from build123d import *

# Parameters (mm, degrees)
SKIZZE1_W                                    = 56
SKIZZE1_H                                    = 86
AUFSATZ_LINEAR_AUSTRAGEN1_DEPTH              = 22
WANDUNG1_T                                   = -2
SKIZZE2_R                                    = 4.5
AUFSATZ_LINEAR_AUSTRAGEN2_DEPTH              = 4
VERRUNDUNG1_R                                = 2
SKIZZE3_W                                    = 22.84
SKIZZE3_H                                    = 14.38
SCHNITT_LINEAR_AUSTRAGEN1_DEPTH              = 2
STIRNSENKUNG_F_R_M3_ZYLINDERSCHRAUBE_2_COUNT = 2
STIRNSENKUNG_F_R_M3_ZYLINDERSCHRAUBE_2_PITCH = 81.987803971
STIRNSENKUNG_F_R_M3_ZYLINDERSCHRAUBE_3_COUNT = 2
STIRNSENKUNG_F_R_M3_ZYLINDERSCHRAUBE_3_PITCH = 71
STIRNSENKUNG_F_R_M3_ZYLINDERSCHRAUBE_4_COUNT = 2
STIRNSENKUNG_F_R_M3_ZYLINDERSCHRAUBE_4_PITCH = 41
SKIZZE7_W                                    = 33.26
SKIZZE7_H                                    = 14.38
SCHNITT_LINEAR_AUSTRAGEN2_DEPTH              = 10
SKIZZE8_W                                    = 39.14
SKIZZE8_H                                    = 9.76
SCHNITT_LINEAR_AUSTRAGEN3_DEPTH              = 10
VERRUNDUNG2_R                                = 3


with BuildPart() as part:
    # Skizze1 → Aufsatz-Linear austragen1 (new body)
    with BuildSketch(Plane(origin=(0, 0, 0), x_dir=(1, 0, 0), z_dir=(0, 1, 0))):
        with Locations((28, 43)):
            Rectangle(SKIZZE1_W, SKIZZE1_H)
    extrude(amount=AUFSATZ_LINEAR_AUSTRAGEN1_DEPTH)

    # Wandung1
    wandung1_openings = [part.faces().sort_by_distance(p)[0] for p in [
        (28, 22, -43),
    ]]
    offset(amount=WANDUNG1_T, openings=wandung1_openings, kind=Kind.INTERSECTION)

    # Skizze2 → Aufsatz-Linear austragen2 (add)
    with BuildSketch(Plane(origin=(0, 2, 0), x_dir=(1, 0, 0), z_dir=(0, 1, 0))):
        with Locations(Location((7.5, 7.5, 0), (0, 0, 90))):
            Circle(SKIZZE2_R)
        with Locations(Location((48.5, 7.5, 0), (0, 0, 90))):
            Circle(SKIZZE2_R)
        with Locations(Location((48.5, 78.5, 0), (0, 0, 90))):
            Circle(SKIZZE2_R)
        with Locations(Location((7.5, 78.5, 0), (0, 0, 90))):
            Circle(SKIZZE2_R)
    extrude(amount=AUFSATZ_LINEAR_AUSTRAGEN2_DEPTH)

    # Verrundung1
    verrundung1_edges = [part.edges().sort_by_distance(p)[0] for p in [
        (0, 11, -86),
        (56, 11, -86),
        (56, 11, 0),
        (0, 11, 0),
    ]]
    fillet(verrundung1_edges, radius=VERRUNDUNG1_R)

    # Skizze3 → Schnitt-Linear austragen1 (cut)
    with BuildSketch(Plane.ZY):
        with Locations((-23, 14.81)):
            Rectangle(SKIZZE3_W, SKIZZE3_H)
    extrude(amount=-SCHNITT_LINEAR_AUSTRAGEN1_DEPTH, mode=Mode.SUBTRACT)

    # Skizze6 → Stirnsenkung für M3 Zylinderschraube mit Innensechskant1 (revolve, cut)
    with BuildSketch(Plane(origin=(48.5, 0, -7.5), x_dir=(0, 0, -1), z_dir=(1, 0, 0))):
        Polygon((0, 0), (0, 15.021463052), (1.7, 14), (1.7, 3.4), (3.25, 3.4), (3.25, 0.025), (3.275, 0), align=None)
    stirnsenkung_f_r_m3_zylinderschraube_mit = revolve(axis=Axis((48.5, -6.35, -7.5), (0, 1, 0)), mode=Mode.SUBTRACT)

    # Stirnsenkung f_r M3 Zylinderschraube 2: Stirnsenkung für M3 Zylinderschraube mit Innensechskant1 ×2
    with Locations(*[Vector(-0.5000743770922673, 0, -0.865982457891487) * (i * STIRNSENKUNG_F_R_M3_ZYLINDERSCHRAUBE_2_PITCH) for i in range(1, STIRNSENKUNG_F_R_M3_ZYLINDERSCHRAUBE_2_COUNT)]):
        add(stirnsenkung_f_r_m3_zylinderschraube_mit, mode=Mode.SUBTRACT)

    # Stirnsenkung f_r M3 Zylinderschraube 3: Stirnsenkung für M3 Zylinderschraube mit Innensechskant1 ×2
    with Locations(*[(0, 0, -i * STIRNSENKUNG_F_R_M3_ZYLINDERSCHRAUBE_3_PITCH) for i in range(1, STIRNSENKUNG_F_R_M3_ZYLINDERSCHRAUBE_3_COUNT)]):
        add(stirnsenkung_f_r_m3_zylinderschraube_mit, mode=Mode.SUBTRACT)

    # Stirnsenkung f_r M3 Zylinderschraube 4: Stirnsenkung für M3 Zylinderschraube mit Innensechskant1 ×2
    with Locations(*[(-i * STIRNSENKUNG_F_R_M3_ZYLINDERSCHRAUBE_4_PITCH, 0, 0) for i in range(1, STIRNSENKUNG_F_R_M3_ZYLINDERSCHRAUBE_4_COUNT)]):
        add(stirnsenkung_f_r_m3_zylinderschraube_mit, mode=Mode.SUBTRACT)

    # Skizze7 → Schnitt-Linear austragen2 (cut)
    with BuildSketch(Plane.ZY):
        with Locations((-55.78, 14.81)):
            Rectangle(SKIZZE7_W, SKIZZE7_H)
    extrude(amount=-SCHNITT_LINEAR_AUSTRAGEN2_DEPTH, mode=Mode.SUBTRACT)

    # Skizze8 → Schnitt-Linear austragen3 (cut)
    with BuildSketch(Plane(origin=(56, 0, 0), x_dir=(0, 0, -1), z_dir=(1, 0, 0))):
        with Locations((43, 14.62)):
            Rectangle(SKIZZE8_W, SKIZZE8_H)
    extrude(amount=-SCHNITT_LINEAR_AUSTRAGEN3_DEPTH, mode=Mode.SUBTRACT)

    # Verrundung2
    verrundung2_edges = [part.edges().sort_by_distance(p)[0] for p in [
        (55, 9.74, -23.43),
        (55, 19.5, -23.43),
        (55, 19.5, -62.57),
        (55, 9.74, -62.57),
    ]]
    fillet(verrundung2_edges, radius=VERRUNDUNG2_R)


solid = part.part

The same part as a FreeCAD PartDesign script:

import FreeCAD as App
import Part
import Sketcher

V = App.Vector
Q = App.Units.Quantity


def edges_at(feature, points):
    """Names of the edges that pass closest to the given points."""
    edges = feature.Shape.Edges
    near = lambda p: min(range(len(edges)), key=lambda i: edges[i].distToShape(Part.Vertex(*p))[0])
    return sorted({f"Edge{near(p) + 1}" for p in points})


def faces_at(feature, points):
    """Names of the faces that lie closest to the given points."""
    faces = feature.Shape.Faces
    near = lambda p: min(range(len(faces)), key=lambda i: faces[i].distToShape(Part.Vertex(*p))[0])
    return sorted({f"Face{near(p) + 1}" for p in points})


def add_polygon(sketch, points):
    """Adds a closed chain of lines whose ends are joined by coincident constraints."""
    first, n = sketch.GeometryCount, len(points)
    for a, b in zip(points, points[1:] + points[:1]):
        sketch.addGeometry(Part.LineSegment(App.Vector(*a, 0), App.Vector(*b, 0)), False)
    for i in range(n):
        sketch.addConstraint(Sketcher.Constraint("Coincident", first + i, 2, first + (i + 1) % n, 1))

doc = App.newDocument("Part")
body = doc.addObject("PartDesign::Body", "Body")

sketch1 = body.newObject("Sketcher::SketchObject", "Sketch")
sketch1.AttachmentSupport = (doc.getObject("XZ_Plane"), [""])
sketch1.MapMode = "FlatFace"
add_polygon(sketch1, [(0, -86), (0, 0), (56, 0), (56, -86)])
sketch1.addConstraint(Sketcher.Constraint("Vertical", 0))
sketch1.addConstraint(Sketcher.Constraint("Horizontal", 1))
sketch1.addConstraint(Sketcher.Constraint("Vertical", 2))
sketch1.addConstraint(Sketcher.Constraint("Horizontal", 3))
sketch1.addConstraint(Sketcher.Constraint("Coincident", 0, 2, -1, 1))
sketch1.addConstraint(Sketcher.Constraint("DistanceX", 1, 1, 1, 2, 56.0))
sketch1.addConstraint(Sketcher.Constraint("DistanceY", 0, 1, 0, 2, 86.0))
pad1 = body.newObject("PartDesign::Pad", "Pad")
pad1.Profile = sketch1
pad1.Length = 22
pad1.Reversed = True
doc.recompute()

thickness = body.newObject("PartDesign::Thickness", "Thickness")
thickness.Base = (pad1, faces_at(pad1, [(28, 22, -43)]))
thickness.Value = 2
thickness.Reversed = True
thickness.Join = "Intersection"

sketch2 = body.newObject("Sketcher::SketchObject", "Sketch001")
sketch2.AttachmentSupport = (doc.getObject("XZ_Plane"), [""])
sketch2.MapMode = "FlatFace"
sketch2.AttachmentOffset = App.Placement(V(0, 0, -2), App.Rotation())
sketch2.addGeometry(Part.Circle(V(7.5, -7.5, 0), V(0, 0, 1), 4.5), False)
sketch2.addGeometry(Part.Circle(V(48.5, -7.5, 0), V(0, 0, 1), 4.5), False)
sketch2.addGeometry(Part.Circle(V(48.5, -78.5, 0), V(0, 0, 1), 4.5), False)
sketch2.addGeometry(Part.Circle(V(7.5, -78.5, 0), V(0, 0, 1), 4.5), False)
sketch2.addConstraint(Sketcher.Constraint("Equal", 0, 1))
sketch2.addConstraint(Sketcher.Constraint("Equal", 1, 2))
sketch2.addConstraint(Sketcher.Constraint("Equal", 2, 3))
sketch2.addConstraint(Sketcher.Constraint("Horizontal", 0, 3, 1, 3))
sketch2.addConstraint(Sketcher.Constraint("Horizontal", 2, 3, 3, 3))
sketch2.addConstraint(Sketcher.Constraint("Vertical", 1, 3, 2, 3))
sketch2.addConstraint(Sketcher.Constraint("Vertical", 0, 3, 3, 3))
sketch2.addConstraint(Sketcher.Constraint("Diameter", 0, 9.0))
sketch2.addConstraint(Sketcher.Constraint("DistanceX", 0, 3, 1, 3, 41.0))
sketch2.addConstraint(Sketcher.Constraint("DistanceY", 2, 3, 1, 3, 71.0))
sketch2.addConstraint(Sketcher.Constraint("DistanceX", -1, 1, 0, 3, 7.5))
sketch2.addConstraint(Sketcher.Constraint("DistanceY", 0, 3, -1, 1, 7.5))
pad2 = body.newObject("PartDesign::Pad", "Pad001")
pad2.Profile = sketch2
pad2.Length = 4
pad2.Reversed = True
doc.recompute()

fillet = body.newObject("PartDesign::Fillet", "Fillet")
fillet.Base = (pad2, edges_at(pad2, [
    (0, 11, -86),
    (56, 11, -86),
    (56, 11, 0),
    (0, 11, 0),
]))
fillet.Radius = 2

sketch3 = body.newObject("Sketcher::SketchObject", "Sketch002")
sketch3.AttachmentSupport = (doc.getObject("YZ_Plane"), [""])
sketch3.MapMode = "FlatFace"
add_polygon(sketch3, [(22, -34.42), (7.62, -34.42), (7.62, -11.58), (22, -11.58)])
sketch3.addConstraint(Sketcher.Constraint("Horizontal", 0))
sketch3.addConstraint(Sketcher.Constraint("Vertical", 1))
sketch3.addConstraint(Sketcher.Constraint("Horizontal", 2))
sketch3.addConstraint(Sketcher.Constraint("Vertical", 3))
sketch3.addConstraint(Sketcher.Constraint("DistanceX", -1, 1, 2, 2, 22.0))
sketch3.addConstraint(Sketcher.Constraint("DistanceX", 0, 2, 0, 1, 14.38))
sketch3.addConstraint(Sketcher.Constraint("DistanceY", 1, 1, 1, 2, 22.84))
sketch3.addConstraint(Sketcher.Constraint("DistanceY", 0, 2, -1, 1, 34.42))
pocket1 = body.newObject("PartDesign::Pocket", "Pocket")
pocket1.Profile = sketch3
pocket1.Length = 2
pocket1.Reversed = True

sketch4 = body.newObject("Sketcher::SketchObject", "Sketch003")
sketch4.AttachmentSupport = (doc.getObject("YZ_Plane"), [""])
sketch4.MapMode = "FlatFace"
sketch4.AttachmentOffset = App.Placement(V(0, 0, 48.5), App.Rotation())
add_polygon(sketch4, [(15.021463, -7.5), (0, -7.5), (0, -10.775), (0.025, -10.75), (3.4, -10.75), (3.4, -9.2), (14, -9.2)])
sketch4.addGeometry(Part.LineSegment(V(0, -7.5, 0), V(15.021463, -7.5, 0)), True)
sketch4.addConstraint(Sketcher.Constraint("Horizontal", 0))
sketch4.addConstraint(Sketcher.Constraint("Vertical", 1))
sketch4.addConstraint(Sketcher.Constraint("Horizontal", 3))
sketch4.addConstraint(Sketcher.Constraint("Vertical", 4))
sketch4.addConstraint(Sketcher.Constraint("Horizontal", 5))
sketch4.addConstraint(Sketcher.Constraint("Horizontal", 7))
sketch4.addConstraint(Sketcher.Constraint("Coincident", 7, 1, 0, 2))
sketch4.addConstraint(Sketcher.Constraint("PointOnObject", 0, 2, -2))
sketch4.addConstraint(Sketcher.Constraint("Equal", 0, 7))
sketch4.addConstraint(Sketcher.Constraint("Angle", 2, Q("45 deg")))
sketch4.addConstraint(Sketcher.Constraint("Angle", 6, Q("59 deg")))
sketch4.addConstraint(Sketcher.Constraint("DistanceX", 5, 1, 5, 2, 10.6))
sketch4.addConstraint(Sketcher.Constraint("DistanceX", -1, 1, 5, 2, 14.0))
sketch4.addConstraint(Sketcher.Constraint("DistanceY", 4, 1, 4, 2, 1.55))
sketch4.addConstraint(Sketcher.Constraint("DistanceY", 0, 2, -1, 1, 7.5))
sketch4.addConstraint(Sketcher.Constraint("DistanceY", 4, 2, -1, 1, 9.2))
sketch4.addConstraint(Sketcher.Constraint("DistanceX", 3, 1, 3, 2, 3.375))
groove = body.newObject("PartDesign::Groove", "Groove")
groove.Profile = sketch4
groove.ReferenceAxis = (sketch4, ["Axis0"])
groove.Angle = 360
doc.recompute()

datumline = body.newObject("PartDesign::Line", "DatumLine")
datumline.Placement = App.Placement(V(0, 0, 0), App.Rotation(V(0, 0, 1), V(-0.500074377, 0, -0.865982458)))
linearpattern = body.newObject("PartDesign::LinearPattern", "LinearPattern")
linearpattern.Originals = [groove]
linearpattern.Direction = (datumline, [""])
linearpattern.Mode = "offset"
linearpattern.Offset = 81.987804
linearpattern.Occurrences = 2
body.Tip = linearpattern
doc.recompute()

linearpattern2 = body.newObject("PartDesign::LinearPattern", "LinearPattern001")
linearpattern2.Originals = [groove]
linearpattern2.Direction = (doc.getObject("Z_Axis"), [""])
linearpattern2.Mode = "offset"
linearpattern2.Offset = 71
linearpattern2.Occurrences = 2
linearpattern2.Reversed = True
body.Tip = linearpattern2
doc.recompute()

linearpattern3 = body.newObject("PartDesign::LinearPattern", "LinearPattern002")
linearpattern3.Originals = [groove]
linearpattern3.Direction = (doc.getObject("X_Axis"), [""])
linearpattern3.Mode = "offset"
linearpattern3.Offset = 41
linearpattern3.Occurrences = 2
linearpattern3.Reversed = True
body.Tip = linearpattern3

sketch5 = body.newObject("Sketcher::SketchObject", "Sketch004")
sketch5.AttachmentSupport = (doc.getObject("YZ_Plane"), [""])
sketch5.MapMode = "FlatFace"
add_polygon(sketch5, [(22, -72.41), (7.62, -72.41), (7.62, -39.15), (22, -39.15)])
sketch5.addConstraint(Sketcher.Constraint("Horizontal", 0))
sketch5.addConstraint(Sketcher.Constraint("Vertical", 1))
sketch5.addConstraint(Sketcher.Constraint("Horizontal", 2))
sketch5.addConstraint(Sketcher.Constraint("Vertical", 3))
sketch5.addConstraint(Sketcher.Constraint("DistanceX", -1, 1, 2, 2, 22.0))
sketch5.addConstraint(Sketcher.Constraint("DistanceX", 0, 2, 0, 1, 14.38))
sketch5.addConstraint(Sketcher.Constraint("DistanceY", 1, 1, 1, 2, 33.26))
sketch5.addConstraint(Sketcher.Constraint("DistanceY", 0, 2, -1, 1, 72.41))
pocket2 = body.newObject("PartDesign::Pocket", "Pocket001")
pocket2.Profile = sketch5
pocket2.Length = 10
pocket2.Reversed = True

sketch6 = body.newObject("Sketcher::SketchObject", "Sketch005")
sketch6.AttachmentSupport = (doc.getObject("YZ_Plane"), [""])
sketch6.MapMode = "FlatFace"
sketch6.AttachmentOffset = App.Placement(V(0, 0, 56), App.Rotation())
add_polygon(sketch6, [(19.5, -23.43), (9.74, -23.43), (9.74, -62.57), (19.5, -62.57)])
sketch6.addConstraint(Sketcher.Constraint("Horizontal", 0))
sketch6.addConstraint(Sketcher.Constraint("Vertical", 1))
sketch6.addConstraint(Sketcher.Constraint("Horizontal", 2))
sketch6.addConstraint(Sketcher.Constraint("Vertical", 3))
sketch6.addConstraint(Sketcher.Constraint("DistanceX", 0, 2, 0, 1, 9.76))
sketch6.addConstraint(Sketcher.Constraint("DistanceY", 1, 2, 1, 1, 39.14))
sketch6.addConstraint(Sketcher.Constraint("DistanceX", -1, 1, 2, 2, 19.5))
sketch6.addConstraint(Sketcher.Constraint("DistanceY", 0, 2, -1, 1, 23.43))
pocket3 = body.newObject("PartDesign::Pocket", "Pocket002")
pocket3.Profile = sketch6
pocket3.Length = 10
doc.recompute()

fillet2 = body.newObject("PartDesign::Fillet", "Fillet001")
fillet2.Base = (pocket3, edges_at(pocket3, [
    (55, 9.74, -23.43),
    (55, 19.5, -23.43),
    (55, 19.5, -62.57),
    (55, 9.74, -62.57),
]))
fillet2.Radius = 3

doc.recompute()
